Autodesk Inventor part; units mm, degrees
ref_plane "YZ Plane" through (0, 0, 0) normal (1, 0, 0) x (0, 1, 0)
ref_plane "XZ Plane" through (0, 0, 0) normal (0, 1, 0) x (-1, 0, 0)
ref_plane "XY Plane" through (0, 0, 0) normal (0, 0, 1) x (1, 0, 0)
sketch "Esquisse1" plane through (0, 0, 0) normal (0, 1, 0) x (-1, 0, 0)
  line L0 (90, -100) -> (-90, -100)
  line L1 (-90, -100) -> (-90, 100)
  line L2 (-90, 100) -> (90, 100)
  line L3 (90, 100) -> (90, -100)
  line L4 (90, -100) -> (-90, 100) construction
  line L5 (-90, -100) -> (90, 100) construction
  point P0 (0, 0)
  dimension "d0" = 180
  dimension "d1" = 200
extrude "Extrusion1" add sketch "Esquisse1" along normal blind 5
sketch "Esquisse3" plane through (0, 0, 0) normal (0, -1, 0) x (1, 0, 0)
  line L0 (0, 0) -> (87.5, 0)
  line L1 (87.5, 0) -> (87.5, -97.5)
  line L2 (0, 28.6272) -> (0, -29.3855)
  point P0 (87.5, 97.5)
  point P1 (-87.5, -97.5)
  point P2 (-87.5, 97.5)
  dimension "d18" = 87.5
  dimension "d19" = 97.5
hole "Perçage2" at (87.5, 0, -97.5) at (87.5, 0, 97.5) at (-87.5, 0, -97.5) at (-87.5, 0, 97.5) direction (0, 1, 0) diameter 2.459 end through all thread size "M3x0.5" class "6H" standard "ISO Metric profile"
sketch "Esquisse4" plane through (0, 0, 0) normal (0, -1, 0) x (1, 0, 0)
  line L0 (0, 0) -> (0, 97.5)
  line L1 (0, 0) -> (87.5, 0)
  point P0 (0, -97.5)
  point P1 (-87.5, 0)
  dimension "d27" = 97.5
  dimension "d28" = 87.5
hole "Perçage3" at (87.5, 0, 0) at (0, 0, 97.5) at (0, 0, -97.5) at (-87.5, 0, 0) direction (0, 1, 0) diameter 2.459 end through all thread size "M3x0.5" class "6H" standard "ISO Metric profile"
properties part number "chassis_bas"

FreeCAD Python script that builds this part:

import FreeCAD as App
import Part
import Sketcher

V = App.Vector

doc = App.newDocument("Part")
body = doc.addObject("PartDesign::Body", "Body")

# Sketch on XZ plane
sketch1 = body.newObject("Sketcher::SketchObject", "Sketch")
sketch1.AttachmentSupport = (doc.getObject("XZ_Plane"), [""])
sketch1.MapMode = "FlatFace"
sketch1.addGeometry([
    Part.LineSegment(V(90, -100, 0), V(-90, -100, 0)),
    Part.LineSegment(V(-90, -100, 0), V(-90, 100, 0)),
    Part.LineSegment(V(-90, 100, 0), V(90, 100, 0)),
    Part.LineSegment(V(90, 100, 0), V(90, -100, 0)),
], False)
sketch1.addConstraint([
    Sketcher.Constraint("Coincident", 0, 2, 1, 1),
    Sketcher.Constraint("Coincident", 1, 2, 2, 1),
    Sketcher.Constraint("Coincident", 2, 2, 3, 1),
    Sketcher.Constraint("Coincident", 3, 2, 0, 1),
    Sketcher.Constraint("Horizontal", 0),
    Sketcher.Constraint("Vertical", 1),
    Sketcher.Constraint("Horizontal", 2),
    Sketcher.Constraint("Vertical", 3),
    Sketcher.Constraint("Symmetric", 0, 2, 2, 2, -1, 1),
    Sketcher.Constraint("DistanceX", 0, 2, 0, 1, 180.0),
    Sketcher.Constraint("DistanceY", 1, 1, 1, 2, 200.0),
])
pad1 = body.newObject("PartDesign::Pad", "Pad")
pad1.Profile = sketch1
pad1.Length = 5
pad1.Reversed = True

# Sketch on XZ plane
sketch2 = body.newObject("Sketcher::SketchObject", "Sketch001")
sketch2.AttachmentSupport = (doc.getObject("XZ_Plane"), [""])
sketch2.MapMode = "FlatFace"
sketch2.addGeometry([
    Part.Circle(V(87.5, -97.5, 0), V(0, 0, 1), 1.2),
    Part.Circle(V(87.5, 97.5, 0), V(0, 0, 1), 1.2),
    Part.Circle(V(-87.5, -97.5, 0), V(0, 0, 1), 1.2),
    Part.Circle(V(-87.5, 97.5, 0), V(0, 0, 1), 1.2),
], False)
sketch2.addConstraint([
    Sketcher.Constraint("Equal", 0, 1),
    Sketcher.Constraint("Equal", 1, 2),
    Sketcher.Constraint("Equal", 2, 3),
    Sketcher.Constraint("Symmetric", 1, 3, 2, 3, -1, 1),
    Sketcher.Constraint("Symmetric", 0, 3, 3, 3, -1, 1),
    Sketcher.Constraint("Symmetric", 0, 3, 2, 3, -2),
    Sketcher.Constraint("Diameter", 0, 2.459),
    Sketcher.Constraint("DistanceY", 0, 3, 1, 3, 195.0),
    Sketcher.Constraint("DistanceX", 2, 3, 0, 3, 175.0),
])
doc.recompute()
hole = body.newObject("PartDesign::Hole", "Hole")
hole.Profile = sketch2
hole.ThreadType = "None"
hole.Diameter = 2.459
hole.DepthType = "ThroughAll"

# Sketch on XZ plane
sketch3 = body.newObject("Sketcher::SketchObject", "Sketch002")
sketch3.AttachmentSupport = (doc.getObject("XZ_Plane"), [""])
sketch3.MapMode = "FlatFace"
sketch3.addGeometry([
    Part.Circle(V(87.5, 0, 0), V(0, 0, 1), 1.2),
    Part.Circle(V(0, 97.5, 0), V(0, 0, 1), 1.2),
    Part.Circle(V(0, -97.5, 0), V(0, 0, 1), 1.2),
    Part.Circle(V(-87.5, 0, 0), V(0, 0, 1), 1.2),
], False)
sketch3.addConstraint([
    Sketcher.Constraint("Equal", 0, 1),
    Sketcher.Constraint("Equal", 1, 2),
    Sketcher.Constraint("Equal", 2, 3),
    Sketcher.Constraint("Symmetric", 1, 3, 2, 3, -1, 1),
    Sketcher.Constraint("Symmetric", 0, 3, 3, 3, -1, 1),
    Sketcher.Constraint("PointOnObject", 0, 3, -1),
    Sketcher.Constraint("PointOnObject", 1, 3, -2),
    Sketcher.Constraint("Diameter", 0, 2.459),
    Sketcher.Constraint("DistanceY", 2, 3, 1, 3, 195.0),
    Sketcher.Constraint("DistanceX", 3, 3, 0, 3, 175.0),
])
doc.recompute()
hole2 = body.newObject("PartDesign::Hole", "Hole001")
hole2.Profile = sketch3
hole2.ThreadType = "None"
hole2.Diameter = 2.459
hole2.DepthType = "ThroughAll"

doc.recompute()
